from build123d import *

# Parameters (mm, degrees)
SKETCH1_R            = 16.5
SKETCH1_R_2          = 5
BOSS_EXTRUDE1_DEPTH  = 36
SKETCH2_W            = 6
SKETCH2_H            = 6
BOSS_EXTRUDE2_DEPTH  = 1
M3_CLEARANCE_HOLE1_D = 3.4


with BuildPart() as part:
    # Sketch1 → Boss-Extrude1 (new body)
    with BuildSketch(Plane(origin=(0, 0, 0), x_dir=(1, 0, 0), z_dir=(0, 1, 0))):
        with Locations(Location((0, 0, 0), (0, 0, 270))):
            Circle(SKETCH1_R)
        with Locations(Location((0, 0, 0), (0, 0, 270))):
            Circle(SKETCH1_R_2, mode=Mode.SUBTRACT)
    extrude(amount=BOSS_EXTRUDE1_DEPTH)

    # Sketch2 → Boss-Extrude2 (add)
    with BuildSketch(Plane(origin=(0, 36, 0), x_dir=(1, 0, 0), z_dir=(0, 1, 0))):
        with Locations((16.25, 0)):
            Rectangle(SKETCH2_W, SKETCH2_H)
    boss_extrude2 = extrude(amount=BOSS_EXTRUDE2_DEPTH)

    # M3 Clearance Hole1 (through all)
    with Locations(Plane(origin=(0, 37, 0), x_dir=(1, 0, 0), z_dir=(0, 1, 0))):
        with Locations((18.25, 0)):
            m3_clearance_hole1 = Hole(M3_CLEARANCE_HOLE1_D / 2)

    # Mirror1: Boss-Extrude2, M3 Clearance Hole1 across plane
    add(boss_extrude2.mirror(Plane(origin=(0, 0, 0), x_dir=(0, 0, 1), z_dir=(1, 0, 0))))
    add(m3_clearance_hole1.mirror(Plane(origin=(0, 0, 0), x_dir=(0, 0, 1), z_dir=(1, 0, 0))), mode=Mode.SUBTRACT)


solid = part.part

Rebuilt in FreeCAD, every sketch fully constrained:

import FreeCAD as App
import Part
import Sketcher

V = App.Vector

doc = App.newDocument("Part")
body = doc.addObject("PartDesign::Body", "Body")

# Sketch on XZ plane
sketch1 = body.newObject("Sketcher::SketchObject", "Sketch")
sketch1.AttachmentSupport = (doc.getObject("XZ_Plane"), [""])
sketch1.MapMode = "FlatFace"
sketch1.addGeometry([
    Part.Circle(V(0, 0, 0), V(0, 0, 1), 16),
    Part.Circle(V(0, 0, 0), V(0, 0, 1), 5),
], False)
sketch1.addConstraint([
    Sketcher.Constraint("Coincident", 0, 3, -1, 1),
    Sketcher.Constraint("Coincident", 1, 3, -1, 1),
    Sketcher.Constraint("Diameter", 0, 33.0),
    Sketcher.Constraint("Diameter", 1, 10.0),
])
pad1 = body.newObject("PartDesign::Pad", "Pad")
pad1.Profile = sketch1
pad1.Length = 36
pad1.Reversed = True

# Sketch on XZ plane
sketch2 = body.newObject("Sketcher::SketchObject", "Sketch001")
sketch2.AttachmentSupport = (doc.getObject("XZ_Plane"), [""])
sketch2.MapMode = "FlatFace"
sketch2.AttachmentOffset = App.Placement(V(0, 0, -36), App.Rotation())
sketch2.addGeometry([
    Part.LineSegment(V(13, -3, 0), V(13, 3, 0)),
    Part.LineSegment(V(13, 3, 0), V(19, 3, 0)),
    Part.LineSegment(V(19, 3, 0), V(19, -3, 0)),
    Part.LineSegment(V(19, -3, 0), V(13, -3, 0)),
], False)
sketch2.addConstraint([
    Sketcher.Constraint("Coincident", 0, 2, 1, 1),
    Sketcher.Constraint("Coincident", 1, 2, 2, 1),
    Sketcher.Constraint("Coincident", 2, 2, 3, 1),
    Sketcher.Constraint("Coincident", 3, 2, 0, 1),
    Sketcher.Constraint("Vertical", 0),
    Sketcher.Constraint("Horizontal", 1),
    Sketcher.Constraint("Vertical", 2),
    Sketcher.Constraint("Horizontal", 3),
    Sketcher.Constraint("Equal", 3, 0),
    Sketcher.Constraint("DistanceX", 1, 1, 1, 2, 6.0),
    Sketcher.Constraint("DistanceY", -1, 1, 0, 2, 3.0),
    Sketcher.Constraint("DistanceX", -1, 1, 0, 2, 13.25),
])
pad2 = body.newObject("PartDesign::Pad", "Pad001")
pad2.Profile = sketch2
pad2.Length = 1
pad2.Reversed = True

# Sketch on XZ plane
sketch3 = body.newObject("Sketcher::SketchObject", "Sketch002")
sketch3.AttachmentSupport = (doc.getObject("XZ_Plane"), [""])
sketch3.MapMode = "FlatFace"
sketch3.AttachmentOffset = App.Placement(V(0, 0, -37), App.Rotation())
sketch3.addGeometry(Part.Circle(V(18.2, 0, 0), V(0, 0, 1), 1.7), False)
sketch3.addConstraint([
    Sketcher.Constraint("PointOnObject", 0, 3, -1),
    Sketcher.Constraint("Diameter", 0, 3.4),
    Sketcher.Constraint("DistanceX", -1, 1, 0, 3, 18.25),
])
doc.recompute()
hole = body.newObject("PartDesign::Hole", "Hole")
hole.Profile = sketch3
hole.ThreadType = "None"
hole.Diameter = 3.4
hole.DepthType = "ThroughAll"
hole.Reversed = True
doc.recompute()

mirrored = body.newObject("PartDesign::Mirrored", "Mirrored")
mirrored.Originals = [pad2, hole]
mirrored.MirrorPlane = (doc.getObject("YZ_Plane"), [""])
body.Tip = mirrored

doc.recompute()
